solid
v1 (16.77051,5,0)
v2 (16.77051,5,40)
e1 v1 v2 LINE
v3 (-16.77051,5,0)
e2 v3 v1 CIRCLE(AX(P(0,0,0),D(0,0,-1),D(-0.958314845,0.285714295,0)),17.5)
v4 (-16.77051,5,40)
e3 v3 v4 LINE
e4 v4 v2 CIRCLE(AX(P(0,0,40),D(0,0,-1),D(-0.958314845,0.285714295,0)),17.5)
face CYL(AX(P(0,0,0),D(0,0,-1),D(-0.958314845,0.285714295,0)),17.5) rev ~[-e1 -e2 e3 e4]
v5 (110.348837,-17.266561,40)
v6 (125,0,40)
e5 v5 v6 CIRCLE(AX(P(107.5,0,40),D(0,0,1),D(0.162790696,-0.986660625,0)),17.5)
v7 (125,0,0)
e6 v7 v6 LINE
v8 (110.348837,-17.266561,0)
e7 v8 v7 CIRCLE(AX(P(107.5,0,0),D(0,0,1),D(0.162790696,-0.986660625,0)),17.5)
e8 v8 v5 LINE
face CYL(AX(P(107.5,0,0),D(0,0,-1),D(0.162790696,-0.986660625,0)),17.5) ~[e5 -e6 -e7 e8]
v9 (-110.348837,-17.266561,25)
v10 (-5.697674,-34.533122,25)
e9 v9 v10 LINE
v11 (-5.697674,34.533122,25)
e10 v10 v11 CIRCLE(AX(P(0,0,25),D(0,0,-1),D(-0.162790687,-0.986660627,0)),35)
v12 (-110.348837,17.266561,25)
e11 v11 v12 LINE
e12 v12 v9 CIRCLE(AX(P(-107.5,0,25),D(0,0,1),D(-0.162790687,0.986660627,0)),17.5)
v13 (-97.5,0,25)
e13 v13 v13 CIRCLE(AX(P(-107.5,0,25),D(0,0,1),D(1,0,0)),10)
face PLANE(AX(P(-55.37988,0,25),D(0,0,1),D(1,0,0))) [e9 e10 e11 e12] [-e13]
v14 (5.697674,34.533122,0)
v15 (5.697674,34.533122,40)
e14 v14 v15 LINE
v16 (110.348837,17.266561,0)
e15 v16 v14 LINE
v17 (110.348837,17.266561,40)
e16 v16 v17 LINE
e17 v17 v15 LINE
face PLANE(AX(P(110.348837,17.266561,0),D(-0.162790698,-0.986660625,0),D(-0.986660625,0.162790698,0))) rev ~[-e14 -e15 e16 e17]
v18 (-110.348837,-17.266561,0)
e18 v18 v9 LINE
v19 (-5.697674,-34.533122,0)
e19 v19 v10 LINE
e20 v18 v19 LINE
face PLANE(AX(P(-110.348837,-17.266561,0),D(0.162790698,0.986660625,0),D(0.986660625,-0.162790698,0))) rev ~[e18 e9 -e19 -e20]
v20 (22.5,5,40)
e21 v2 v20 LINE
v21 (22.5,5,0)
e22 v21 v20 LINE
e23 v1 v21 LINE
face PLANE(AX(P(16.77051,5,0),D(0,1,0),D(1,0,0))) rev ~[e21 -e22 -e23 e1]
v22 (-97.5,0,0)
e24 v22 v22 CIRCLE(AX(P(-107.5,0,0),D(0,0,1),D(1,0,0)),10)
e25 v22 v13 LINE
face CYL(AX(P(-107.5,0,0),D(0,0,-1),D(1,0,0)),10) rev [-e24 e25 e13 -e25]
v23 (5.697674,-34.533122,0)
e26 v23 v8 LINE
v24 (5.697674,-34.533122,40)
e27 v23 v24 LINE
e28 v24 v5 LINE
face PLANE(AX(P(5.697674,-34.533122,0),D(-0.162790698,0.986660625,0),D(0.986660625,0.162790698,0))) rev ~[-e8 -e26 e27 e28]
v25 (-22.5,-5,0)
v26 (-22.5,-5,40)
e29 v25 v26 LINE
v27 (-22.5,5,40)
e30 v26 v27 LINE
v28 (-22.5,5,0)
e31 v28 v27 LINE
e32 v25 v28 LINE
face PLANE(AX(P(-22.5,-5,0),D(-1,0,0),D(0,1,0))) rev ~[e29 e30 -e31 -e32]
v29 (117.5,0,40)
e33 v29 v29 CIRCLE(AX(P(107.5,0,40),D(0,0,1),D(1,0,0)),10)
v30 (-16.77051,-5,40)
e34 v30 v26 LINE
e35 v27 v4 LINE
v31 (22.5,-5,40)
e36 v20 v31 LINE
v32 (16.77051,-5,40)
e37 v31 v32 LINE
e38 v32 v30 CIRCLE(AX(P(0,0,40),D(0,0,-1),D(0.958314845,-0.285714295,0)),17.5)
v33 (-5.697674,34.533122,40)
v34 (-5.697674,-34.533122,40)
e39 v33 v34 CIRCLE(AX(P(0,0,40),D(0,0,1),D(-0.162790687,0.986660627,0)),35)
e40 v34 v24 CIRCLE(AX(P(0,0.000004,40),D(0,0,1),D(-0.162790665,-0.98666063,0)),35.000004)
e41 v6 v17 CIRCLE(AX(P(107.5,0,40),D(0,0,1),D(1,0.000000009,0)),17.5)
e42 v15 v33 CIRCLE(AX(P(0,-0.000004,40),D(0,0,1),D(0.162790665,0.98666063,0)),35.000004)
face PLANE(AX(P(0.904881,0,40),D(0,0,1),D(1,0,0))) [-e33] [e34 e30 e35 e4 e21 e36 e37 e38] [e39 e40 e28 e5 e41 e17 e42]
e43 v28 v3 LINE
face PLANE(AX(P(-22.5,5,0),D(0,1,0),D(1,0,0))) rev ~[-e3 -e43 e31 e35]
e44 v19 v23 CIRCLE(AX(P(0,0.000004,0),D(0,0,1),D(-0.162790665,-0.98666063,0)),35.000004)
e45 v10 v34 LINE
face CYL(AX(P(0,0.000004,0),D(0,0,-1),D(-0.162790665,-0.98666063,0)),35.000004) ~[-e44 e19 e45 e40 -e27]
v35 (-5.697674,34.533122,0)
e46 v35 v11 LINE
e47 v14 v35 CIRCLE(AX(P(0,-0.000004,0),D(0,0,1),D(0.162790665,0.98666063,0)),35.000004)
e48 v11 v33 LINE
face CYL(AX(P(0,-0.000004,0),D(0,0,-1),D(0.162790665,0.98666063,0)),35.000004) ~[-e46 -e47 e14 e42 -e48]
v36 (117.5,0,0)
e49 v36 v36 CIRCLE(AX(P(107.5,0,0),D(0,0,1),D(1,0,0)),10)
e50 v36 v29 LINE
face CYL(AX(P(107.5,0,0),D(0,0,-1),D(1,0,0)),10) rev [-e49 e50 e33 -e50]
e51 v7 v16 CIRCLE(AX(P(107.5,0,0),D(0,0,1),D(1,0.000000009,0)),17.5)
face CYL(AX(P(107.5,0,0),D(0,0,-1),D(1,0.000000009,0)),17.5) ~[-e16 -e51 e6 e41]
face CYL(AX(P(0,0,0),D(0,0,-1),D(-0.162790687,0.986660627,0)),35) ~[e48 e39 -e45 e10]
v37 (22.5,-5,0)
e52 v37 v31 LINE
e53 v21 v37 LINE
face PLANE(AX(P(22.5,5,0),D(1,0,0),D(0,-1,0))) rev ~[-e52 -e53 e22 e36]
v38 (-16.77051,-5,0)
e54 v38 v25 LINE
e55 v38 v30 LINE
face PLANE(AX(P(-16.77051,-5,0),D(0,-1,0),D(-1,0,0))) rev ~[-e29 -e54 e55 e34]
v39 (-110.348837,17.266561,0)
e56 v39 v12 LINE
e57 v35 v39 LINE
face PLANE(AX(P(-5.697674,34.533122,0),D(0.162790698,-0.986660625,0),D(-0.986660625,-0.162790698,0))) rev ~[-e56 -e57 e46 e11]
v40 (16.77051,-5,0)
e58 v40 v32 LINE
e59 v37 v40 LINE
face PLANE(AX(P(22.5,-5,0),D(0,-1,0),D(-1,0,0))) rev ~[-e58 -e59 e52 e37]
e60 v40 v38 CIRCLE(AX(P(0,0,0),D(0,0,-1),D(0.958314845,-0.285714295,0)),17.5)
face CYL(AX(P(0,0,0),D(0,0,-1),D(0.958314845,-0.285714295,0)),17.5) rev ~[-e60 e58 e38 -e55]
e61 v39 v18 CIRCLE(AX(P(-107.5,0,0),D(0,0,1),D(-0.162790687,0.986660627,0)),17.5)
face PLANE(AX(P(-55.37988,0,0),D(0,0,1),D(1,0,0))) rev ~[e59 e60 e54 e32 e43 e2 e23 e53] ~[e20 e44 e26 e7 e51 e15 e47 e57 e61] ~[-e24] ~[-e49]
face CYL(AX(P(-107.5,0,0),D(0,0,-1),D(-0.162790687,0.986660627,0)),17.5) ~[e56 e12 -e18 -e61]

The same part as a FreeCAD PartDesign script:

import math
import FreeCAD as App
import Part
import Sketcher

V = App.Vector

doc = App.newDocument("Part")
body = doc.addObject("PartDesign::Body", "Body")

# Sketch on XY plane
sketch1 = body.newObject("Sketcher::SketchObject", "Sketch")
sketch1.AttachmentSupport = (doc.getObject("XY_Plane"), [""])
sketch1.MapMode = "FlatFace"
sketch1.addGeometry([
    Part.ArcOfCircle(Part.Circle(V(0, 0, 0), V(0, 0, 1), 35), math.radians(-99.37), math.radians(-80.63)),  # 0
    Part.LineSegment(V(6, -35, 0), V(110, -17, 0)),  # 1
    Part.ArcOfCircle(Part.Circle(V(107, 0, 0), V(0, 0, 1), 18), math.radians(-81), math.radians(0)),  # 2
    Part.ArcOfCircle(Part.Circle(V(107, 0, 0), V(0, 0, 1), 18), math.radians(0), math.radians(81)),  # 3
    Part.LineSegment(V(110, 17, 0), V(6, 35, 0)),  # 4
    Part.ArcOfCircle(Part.Circle(V(0, 0, 0), V(0, 0, 1), 35), math.radians(80.63), math.radians(99.37)),  # 5
    Part.ArcOfCircle(Part.Circle(V(0, 0, 0), V(0, 0, 1), 35), math.radians(99), math.radians(261)),  # 6
    Part.LineSegment(V(-22, 5, 0), V(-17, 5, 0)),  # 7
    Part.ArcOfCircle(Part.Circle(V(0, 0, 0), V(0, 0, 1), 18), math.radians(17), math.radians(163)),  # 8
    Part.LineSegment(V(17, 5, 0), V(22, 5, 0)),  # 9
    Part.LineSegment(V(22, 5, 0), V(22, -5, 0)),  # 10
    Part.LineSegment(V(22, -5, 0), V(17, -5, 0)),  # 11
    Part.ArcOfCircle(Part.Circle(V(0, 0, 0), V(0, 0, 1), 18), math.radians(-163), math.radians(-17)),  # 12
    Part.LineSegment(V(-17, -5, 0), V(-22, -5, 0)),  # 13
    Part.LineSegment(V(-22, -5, 0), V(-22, 5, 0)),  # 14
    Part.Circle(V(108, 0, 0), V(0, 0, 1), 10),  # 15
], False)
sketch1.addConstraint([
    Sketcher.Constraint("Tangent", 0, 2, 1, 1),
    Sketcher.Constraint("Tangent", 1, 2, 2, 1),
    Sketcher.Constraint("Tangent", 2, 2, 3, 1),
    Sketcher.Constraint("Tangent", 3, 2, 4, 1),
    Sketcher.Constraint("Tangent", 4, 2, 5, 1),
    Sketcher.Constraint("Tangent", 5, 2, 6, 1),
    Sketcher.Constraint("Tangent", 6, 2, 0, 1),
    Sketcher.Constraint("Coincident", 7, 2, 8, 2),
    Sketcher.Constraint("Coincident", 8, 1, 9, 1),
    Sketcher.Constraint("Coincident", 9, 2, 10, 1),
    Sketcher.Constraint("Coincident", 10, 2, 11, 1),
    Sketcher.Constraint("Coincident", 11, 2, 12, 2),
    Sketcher.Constraint("Coincident", 12, 1, 13, 1),
    Sketcher.Constraint("Coincident", 13, 2, 14, 1),
    Sketcher.Constraint("Coincident", 14, 2, 7, 1),
    Sketcher.Constraint("Horizontal", 7),
    Sketcher.Constraint("Horizontal", 9),
    Sketcher.Constraint("Vertical", 10),
    Sketcher.Constraint("Horizontal", 11),
    Sketcher.Constraint("Horizontal", 13),
    Sketcher.Constraint("Vertical", 14),
    Sketcher.Constraint("Coincident", 0, 3, -1, 1),
    Sketcher.Constraint("Coincident", 5, 3, -1, 1),
    Sketcher.Constraint("Coincident", 8, 3, -1, 1),
    Sketcher.Constraint("Coincident", 12, 3, -1, 1),
    Sketcher.Constraint("Coincident", 15, 3, 2, 3),
    Sketcher.Constraint("Equal", 2, 3),
    Sketcher.Constraint("Equal", 3, 8),
    Sketcher.Constraint("Equal", 8, 12),
    Sketcher.Constraint("Symmetric", 9, 2, 13, 2, -1, 1),
    Sketcher.Constraint("PointOnObject", 2, 3, -1),
    Sketcher.Constraint("PointOnObject", 2, 2, -1),
    Sketcher.Constraint("Horizontal", 4, 2, 5, 2),
    Sketcher.Constraint("Horizontal", 0, 2, 6, 2),
    Sketcher.Constraint("Horizontal", 7, 2, 8, 1),
    Sketcher.Constraint("Horizontal", 11, 2, 12, 1),
    Sketcher.Constraint("Diameter", 15, 20.0),
    Sketcher.Constraint("Radius", 6, 35.0),
    Sketcher.Constraint("Radius", 2, 17.5),
    Sketcher.Constraint("DistanceY", 10, 2, 10, 1, 10.0),
    Sketcher.Constraint("DistanceX", -1, 1, 2, 2, 125.0),
    Sketcher.Constraint("DistanceX", -1, 1, 9, 2, 22.5),
])
pad1 = body.newObject("PartDesign::Pad", "Pad")
pad1.Profile = sketch1
pad1.Length = 40

# Sketch on XY plane
sketch2 = body.newObject("Sketcher::SketchObject", "Sketch001")
sketch2.AttachmentSupport = (doc.getObject("XY_Plane"), [""])
sketch2.MapMode = "FlatFace"
sketch2.addGeometry([
    Part.ArcOfCircle(Part.Circle(V(0, 0, 0), V(0, 0, 1), 35), math.radians(99), math.radians(261)),  # 0
    Part.LineSegment(V(-6, 35, 0), V(-110, 17, 0)),  # 1
    Part.ArcOfCircle(Part.Circle(V(-107, 0, 0), V(0, 0, 1), 18), math.radians(99), math.radians(261)),  # 2
    Part.LineSegment(V(-110, -17, 0), V(-6, -35, 0)),  # 3
    Part.Circle(V(-108, 0, 0), V(0, 0, 1), 10),  # 4
], False)
sketch2.addConstraint([
    Sketcher.Constraint("Tangent", 0, 1, 1, 1),
    Sketcher.Constraint("Tangent", 1, 2, 2, 1),
    Sketcher.Constraint("Tangent", 2, 2, 3, 1),
    Sketcher.Constraint("Tangent", 3, 2, 0, 2),
    Sketcher.Constraint("Coincident", 0, 3, -1, 1),
    Sketcher.Constraint("Coincident", 4, 3, 2, 3),
    Sketcher.Constraint("PointOnObject", 2, 3, -1),
    Sketcher.Constraint("Diameter", 4, 20.0),
    Sketcher.Constraint("Radius", 0, 35.0),
    Sketcher.Constraint("Radius", 2, 17.5),
    Sketcher.Constraint("DistanceX", 2, 3, -1, 1, 107.5),
])
pad2 = body.newObject("PartDesign::Pad", "Pad001")
pad2.Profile = sketch2
pad2.Length = 25

doc.recompute()
